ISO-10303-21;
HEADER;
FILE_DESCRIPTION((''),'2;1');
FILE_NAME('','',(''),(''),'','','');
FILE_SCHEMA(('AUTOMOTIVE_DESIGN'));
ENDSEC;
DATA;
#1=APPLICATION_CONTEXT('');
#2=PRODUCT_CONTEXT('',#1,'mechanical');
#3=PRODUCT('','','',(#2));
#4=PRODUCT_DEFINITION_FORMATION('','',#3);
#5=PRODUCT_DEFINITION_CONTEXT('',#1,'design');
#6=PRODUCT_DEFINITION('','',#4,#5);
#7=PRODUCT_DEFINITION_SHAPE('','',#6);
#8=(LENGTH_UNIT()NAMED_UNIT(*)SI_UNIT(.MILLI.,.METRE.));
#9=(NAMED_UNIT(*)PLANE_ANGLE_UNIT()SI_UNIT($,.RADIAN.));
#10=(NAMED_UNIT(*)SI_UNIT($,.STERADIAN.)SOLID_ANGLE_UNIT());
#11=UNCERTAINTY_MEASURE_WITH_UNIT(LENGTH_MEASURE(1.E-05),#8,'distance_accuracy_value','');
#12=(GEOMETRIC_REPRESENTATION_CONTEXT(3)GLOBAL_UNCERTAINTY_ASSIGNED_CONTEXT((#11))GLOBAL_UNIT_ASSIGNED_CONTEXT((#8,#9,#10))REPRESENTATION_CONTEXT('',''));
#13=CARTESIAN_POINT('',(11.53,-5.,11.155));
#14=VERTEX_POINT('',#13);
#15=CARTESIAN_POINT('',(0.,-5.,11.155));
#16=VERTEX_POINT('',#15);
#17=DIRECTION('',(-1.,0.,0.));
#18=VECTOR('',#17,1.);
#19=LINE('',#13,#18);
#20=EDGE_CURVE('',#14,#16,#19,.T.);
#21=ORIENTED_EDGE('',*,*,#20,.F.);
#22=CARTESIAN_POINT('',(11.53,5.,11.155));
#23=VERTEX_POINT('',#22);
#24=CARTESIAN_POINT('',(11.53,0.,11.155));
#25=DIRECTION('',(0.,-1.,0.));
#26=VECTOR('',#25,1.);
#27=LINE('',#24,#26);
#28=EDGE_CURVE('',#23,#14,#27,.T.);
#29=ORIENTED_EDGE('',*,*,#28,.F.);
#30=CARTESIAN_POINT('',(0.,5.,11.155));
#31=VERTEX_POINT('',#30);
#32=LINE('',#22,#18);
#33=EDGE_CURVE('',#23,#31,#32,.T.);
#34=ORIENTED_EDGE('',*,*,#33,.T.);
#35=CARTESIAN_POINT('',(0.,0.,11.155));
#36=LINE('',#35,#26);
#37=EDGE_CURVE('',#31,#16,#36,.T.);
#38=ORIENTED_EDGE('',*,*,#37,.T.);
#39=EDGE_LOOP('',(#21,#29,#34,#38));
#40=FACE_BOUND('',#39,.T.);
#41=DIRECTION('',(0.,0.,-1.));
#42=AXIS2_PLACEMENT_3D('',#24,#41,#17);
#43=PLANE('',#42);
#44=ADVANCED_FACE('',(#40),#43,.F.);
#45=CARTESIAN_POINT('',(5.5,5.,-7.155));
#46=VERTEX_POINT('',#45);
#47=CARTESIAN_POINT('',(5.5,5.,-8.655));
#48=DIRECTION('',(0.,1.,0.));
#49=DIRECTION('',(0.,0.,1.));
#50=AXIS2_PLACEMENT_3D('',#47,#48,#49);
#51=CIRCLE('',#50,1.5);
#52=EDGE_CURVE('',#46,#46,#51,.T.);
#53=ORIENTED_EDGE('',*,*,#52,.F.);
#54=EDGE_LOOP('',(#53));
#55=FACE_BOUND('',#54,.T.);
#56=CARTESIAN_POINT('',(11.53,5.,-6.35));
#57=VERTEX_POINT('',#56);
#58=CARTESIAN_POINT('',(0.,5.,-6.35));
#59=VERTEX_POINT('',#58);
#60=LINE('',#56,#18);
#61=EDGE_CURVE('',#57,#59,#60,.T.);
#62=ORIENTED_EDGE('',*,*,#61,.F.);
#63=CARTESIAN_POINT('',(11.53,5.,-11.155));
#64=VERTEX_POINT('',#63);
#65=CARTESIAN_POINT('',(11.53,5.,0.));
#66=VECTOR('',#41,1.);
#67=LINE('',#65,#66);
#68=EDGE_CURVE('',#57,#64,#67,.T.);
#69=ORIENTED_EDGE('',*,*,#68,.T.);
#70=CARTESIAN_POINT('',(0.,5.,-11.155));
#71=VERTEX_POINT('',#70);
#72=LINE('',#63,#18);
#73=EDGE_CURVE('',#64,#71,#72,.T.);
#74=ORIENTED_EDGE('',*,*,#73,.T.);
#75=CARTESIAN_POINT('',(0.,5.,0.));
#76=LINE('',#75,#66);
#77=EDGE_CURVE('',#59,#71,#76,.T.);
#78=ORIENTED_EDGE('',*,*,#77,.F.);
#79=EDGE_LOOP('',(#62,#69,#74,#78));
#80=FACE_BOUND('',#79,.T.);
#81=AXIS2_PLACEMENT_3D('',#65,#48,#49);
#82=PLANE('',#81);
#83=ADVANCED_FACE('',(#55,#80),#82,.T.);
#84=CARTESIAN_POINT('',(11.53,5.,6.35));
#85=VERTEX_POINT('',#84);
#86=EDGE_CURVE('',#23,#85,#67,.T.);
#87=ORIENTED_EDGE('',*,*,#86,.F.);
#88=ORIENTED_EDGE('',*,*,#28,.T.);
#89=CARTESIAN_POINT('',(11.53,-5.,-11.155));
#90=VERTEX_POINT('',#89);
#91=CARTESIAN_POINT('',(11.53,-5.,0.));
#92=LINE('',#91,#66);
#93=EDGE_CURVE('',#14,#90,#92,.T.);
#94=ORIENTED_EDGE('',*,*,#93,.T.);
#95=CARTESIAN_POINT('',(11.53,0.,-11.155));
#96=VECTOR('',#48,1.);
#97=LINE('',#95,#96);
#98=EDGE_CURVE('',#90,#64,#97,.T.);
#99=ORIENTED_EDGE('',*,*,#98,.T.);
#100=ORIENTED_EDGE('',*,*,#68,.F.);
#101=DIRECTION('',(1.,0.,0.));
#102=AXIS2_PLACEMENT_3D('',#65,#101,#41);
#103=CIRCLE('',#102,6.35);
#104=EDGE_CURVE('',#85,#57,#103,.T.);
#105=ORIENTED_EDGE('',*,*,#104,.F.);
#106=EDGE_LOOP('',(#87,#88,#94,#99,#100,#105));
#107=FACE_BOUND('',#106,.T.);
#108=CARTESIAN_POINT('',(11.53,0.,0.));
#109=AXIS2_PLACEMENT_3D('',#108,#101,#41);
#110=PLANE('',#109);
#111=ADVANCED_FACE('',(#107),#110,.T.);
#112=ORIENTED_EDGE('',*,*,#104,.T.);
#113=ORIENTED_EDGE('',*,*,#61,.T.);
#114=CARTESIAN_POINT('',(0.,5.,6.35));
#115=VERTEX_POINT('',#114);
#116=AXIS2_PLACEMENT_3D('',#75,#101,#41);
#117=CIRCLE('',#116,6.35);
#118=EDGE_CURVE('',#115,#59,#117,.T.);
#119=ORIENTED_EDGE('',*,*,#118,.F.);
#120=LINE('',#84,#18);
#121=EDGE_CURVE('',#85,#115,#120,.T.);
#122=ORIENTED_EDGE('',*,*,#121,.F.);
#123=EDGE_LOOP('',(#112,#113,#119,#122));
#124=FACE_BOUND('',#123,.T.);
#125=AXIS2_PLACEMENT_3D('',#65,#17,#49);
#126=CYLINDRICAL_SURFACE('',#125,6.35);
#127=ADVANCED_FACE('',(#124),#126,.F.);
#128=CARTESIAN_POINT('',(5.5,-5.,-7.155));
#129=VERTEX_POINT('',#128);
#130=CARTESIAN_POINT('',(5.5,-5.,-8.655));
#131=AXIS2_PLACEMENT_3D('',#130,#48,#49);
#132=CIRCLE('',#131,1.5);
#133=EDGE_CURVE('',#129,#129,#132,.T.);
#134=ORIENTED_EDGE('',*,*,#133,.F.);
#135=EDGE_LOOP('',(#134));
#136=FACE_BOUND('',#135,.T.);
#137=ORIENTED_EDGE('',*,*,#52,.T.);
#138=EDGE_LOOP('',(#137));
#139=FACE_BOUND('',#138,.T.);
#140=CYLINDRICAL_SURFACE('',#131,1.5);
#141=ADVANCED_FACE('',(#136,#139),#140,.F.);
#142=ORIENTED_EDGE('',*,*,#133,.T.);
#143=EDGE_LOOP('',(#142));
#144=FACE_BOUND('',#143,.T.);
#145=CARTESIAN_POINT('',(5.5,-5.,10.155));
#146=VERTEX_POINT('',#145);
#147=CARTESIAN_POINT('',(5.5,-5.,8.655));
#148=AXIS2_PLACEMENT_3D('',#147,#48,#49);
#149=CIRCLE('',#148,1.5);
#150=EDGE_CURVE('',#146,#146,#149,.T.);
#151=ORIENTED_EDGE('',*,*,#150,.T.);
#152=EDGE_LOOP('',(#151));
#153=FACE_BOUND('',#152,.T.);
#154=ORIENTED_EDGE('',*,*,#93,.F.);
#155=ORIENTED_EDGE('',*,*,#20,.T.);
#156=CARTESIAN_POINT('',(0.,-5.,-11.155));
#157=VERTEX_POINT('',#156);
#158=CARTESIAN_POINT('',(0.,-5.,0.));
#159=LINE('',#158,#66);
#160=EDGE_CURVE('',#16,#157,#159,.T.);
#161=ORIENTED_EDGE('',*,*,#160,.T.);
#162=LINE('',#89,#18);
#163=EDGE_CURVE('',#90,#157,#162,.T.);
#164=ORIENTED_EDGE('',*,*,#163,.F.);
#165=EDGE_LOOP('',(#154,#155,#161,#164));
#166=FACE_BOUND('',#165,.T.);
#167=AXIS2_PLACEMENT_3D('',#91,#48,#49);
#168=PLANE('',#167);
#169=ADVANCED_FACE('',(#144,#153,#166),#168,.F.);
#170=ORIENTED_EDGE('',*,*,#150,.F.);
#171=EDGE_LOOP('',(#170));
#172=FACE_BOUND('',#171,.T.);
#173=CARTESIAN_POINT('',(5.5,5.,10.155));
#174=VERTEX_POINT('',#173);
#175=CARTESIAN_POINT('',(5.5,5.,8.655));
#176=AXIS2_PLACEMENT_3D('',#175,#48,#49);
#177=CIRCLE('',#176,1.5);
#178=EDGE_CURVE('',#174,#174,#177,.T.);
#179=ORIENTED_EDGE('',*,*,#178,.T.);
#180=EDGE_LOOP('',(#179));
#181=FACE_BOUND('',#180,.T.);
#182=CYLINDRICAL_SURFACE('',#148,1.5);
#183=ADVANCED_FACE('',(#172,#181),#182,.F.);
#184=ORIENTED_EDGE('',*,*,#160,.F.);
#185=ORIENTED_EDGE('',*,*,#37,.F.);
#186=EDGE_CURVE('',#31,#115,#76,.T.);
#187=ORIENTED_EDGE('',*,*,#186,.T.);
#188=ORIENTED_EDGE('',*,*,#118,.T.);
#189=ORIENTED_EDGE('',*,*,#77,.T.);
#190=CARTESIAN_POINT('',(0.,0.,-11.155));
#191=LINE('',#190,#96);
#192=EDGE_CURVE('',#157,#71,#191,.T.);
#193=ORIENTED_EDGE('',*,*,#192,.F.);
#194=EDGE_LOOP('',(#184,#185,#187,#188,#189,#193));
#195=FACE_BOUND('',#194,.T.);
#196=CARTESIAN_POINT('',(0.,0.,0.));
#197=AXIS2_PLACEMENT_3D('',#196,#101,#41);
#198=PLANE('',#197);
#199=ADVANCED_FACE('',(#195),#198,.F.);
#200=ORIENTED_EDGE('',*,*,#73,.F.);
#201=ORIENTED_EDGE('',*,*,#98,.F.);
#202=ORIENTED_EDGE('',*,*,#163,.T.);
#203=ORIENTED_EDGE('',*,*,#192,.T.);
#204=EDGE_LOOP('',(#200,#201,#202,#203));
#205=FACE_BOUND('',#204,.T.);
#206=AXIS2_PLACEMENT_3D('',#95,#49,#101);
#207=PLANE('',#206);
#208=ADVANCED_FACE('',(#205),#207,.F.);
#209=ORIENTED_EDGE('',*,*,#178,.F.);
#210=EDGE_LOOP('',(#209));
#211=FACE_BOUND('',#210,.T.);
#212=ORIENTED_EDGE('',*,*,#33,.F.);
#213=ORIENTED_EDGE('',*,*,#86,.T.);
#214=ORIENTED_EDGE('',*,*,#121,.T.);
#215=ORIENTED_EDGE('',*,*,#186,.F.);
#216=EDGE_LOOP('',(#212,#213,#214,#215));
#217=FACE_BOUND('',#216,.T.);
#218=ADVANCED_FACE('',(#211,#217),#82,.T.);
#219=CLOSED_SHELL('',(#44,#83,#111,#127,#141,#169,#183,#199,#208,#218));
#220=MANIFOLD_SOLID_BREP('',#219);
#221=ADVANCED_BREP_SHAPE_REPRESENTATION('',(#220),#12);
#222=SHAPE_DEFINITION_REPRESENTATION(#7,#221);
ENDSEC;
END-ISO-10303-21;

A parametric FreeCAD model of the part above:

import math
import FreeCAD as App
import Part
import Sketcher
from FreeCAD import Vector
Q = App.Units.Quantity

doc = App.newDocument("Part")
body = doc.addObject("PartDesign::Body", "Body")

# Sketch on YZ plane
sketch1 = body.newObject("Sketcher::SketchObject", "Sketch")
sketch1.AttachmentSupport = (doc.getObject("YZ_Plane"), [""])
sketch1.MapMode = "FlatFace"
sketch1.addGeometry(Part.LineSegment(Vector(5, 6.3, 0), Vector(5, 11.2, 0)), False)
sketch1.addGeometry(Part.LineSegment(Vector(5, 11.2, 0), Vector(-5, 11.2, 0)), False)
sketch1.addGeometry(Part.LineSegment(Vector(-5, 11.2, 0), Vector(-5, -11.2, 0)), False)
sketch1.addGeometry(Part.LineSegment(Vector(-5, -11.2, 0), Vector(5, -11.2, 0)), False)
sketch1.addGeometry(Part.LineSegment(Vector(5, -11.2, 0), Vector(5, -6.3, 0)), False)
sketch1.addGeometry(Part.ArcOfCircle(Part.Circle(Vector(5, 0, 0), Vector(0, 0, 1), 6.3), math.radians(90), math.radians(270)), False)
sketch1.addConstraint(Sketcher.Constraint("Coincident", 0, 2, 1, 1))
sketch1.addConstraint(Sketcher.Constraint("Coincident", 1, 2, 2, 1))
sketch1.addConstraint(Sketcher.Constraint("Coincident", 2, 2, 3, 1))
sketch1.addConstraint(Sketcher.Constraint("Coincident", 3, 2, 4, 1))
sketch1.addConstraint(Sketcher.Constraint("Coincident", 4, 2, 5, 2))
sketch1.addConstraint(Sketcher.Constraint("Coincident", 5, 1, 0, 1))
sketch1.addConstraint(Sketcher.Constraint("Vertical", 0))
sketch1.addConstraint(Sketcher.Constraint("Horizontal", 1))
sketch1.addConstraint(Sketcher.Constraint("Vertical", 2))
sketch1.addConstraint(Sketcher.Constraint("Horizontal", 3))
sketch1.addConstraint(Sketcher.Constraint("Vertical", 4))
sketch1.addConstraint(Sketcher.Constraint("Symmetric", 0, 2, 2, 2, -1, 1))
sketch1.addConstraint(Sketcher.Constraint("Symmetric", 4, 2, 5, 1, -1))
sketch1.addConstraint(Sketcher.Constraint("Vertical", 5, 3, 0, 2))
sketch1.addConstraint(Sketcher.Constraint("DistanceX", 1, 2, 1, 1, Q("10 mm")))
sketch1.addConstraint(Sketcher.Constraint("Radius", 5, Q("6.35 mm")))
sketch1.addConstraint(Sketcher.Constraint("DistanceY", 2, 2, 2, 1, Q("22.31 mm")))
pad1 = body.newObject("PartDesign::Pad", "Pad")
pad1.Profile = sketch1
pad1.Length = 11.53

# Sketch on XZ plane
sketch2 = body.newObject("Sketcher::SketchObject", "Sketch001")
sketch2.AttachmentSupport = (doc.getObject("XZ_Plane"), [""])
sketch2.MapMode = "FlatFace"
sketch2.AttachmentOffset = App.Placement(Vector(0, 0, -5), App.Rotation())
sketch2.addGeometry(Part.Circle(Vector(5.5, 8.7, 0), Vector(0, 0, 1), 1.5), False)
sketch2.addGeometry(Part.Circle(Vector(5.5, -8.7, 0), Vector(0, 0, 1), 1.5), False)
sketch2.addConstraint(Sketcher.Constraint("Equal", 0, 1))
sketch2.addConstraint(Sketcher.Constraint("Symmetric", 0, 3, 1, 3, -1))
sketch2.addConstraint(Sketcher.Constraint("Diameter", 0, Q("3 mm")))
sketch2.addConstraint(Sketcher.Constraint("DistanceX", -1, 1, 0, 3, Q("5.5 mm")))
sketch2.addConstraint(Sketcher.Constraint("DistanceY", 1, 3, 0, 3, Q("17.31 mm")))
pocket1 = body.newObject("PartDesign::Pocket", "Pocket")
pocket1.Profile = sketch2
pocket1.Length = 10
pocket1.Reversed = True

doc.recompute()
